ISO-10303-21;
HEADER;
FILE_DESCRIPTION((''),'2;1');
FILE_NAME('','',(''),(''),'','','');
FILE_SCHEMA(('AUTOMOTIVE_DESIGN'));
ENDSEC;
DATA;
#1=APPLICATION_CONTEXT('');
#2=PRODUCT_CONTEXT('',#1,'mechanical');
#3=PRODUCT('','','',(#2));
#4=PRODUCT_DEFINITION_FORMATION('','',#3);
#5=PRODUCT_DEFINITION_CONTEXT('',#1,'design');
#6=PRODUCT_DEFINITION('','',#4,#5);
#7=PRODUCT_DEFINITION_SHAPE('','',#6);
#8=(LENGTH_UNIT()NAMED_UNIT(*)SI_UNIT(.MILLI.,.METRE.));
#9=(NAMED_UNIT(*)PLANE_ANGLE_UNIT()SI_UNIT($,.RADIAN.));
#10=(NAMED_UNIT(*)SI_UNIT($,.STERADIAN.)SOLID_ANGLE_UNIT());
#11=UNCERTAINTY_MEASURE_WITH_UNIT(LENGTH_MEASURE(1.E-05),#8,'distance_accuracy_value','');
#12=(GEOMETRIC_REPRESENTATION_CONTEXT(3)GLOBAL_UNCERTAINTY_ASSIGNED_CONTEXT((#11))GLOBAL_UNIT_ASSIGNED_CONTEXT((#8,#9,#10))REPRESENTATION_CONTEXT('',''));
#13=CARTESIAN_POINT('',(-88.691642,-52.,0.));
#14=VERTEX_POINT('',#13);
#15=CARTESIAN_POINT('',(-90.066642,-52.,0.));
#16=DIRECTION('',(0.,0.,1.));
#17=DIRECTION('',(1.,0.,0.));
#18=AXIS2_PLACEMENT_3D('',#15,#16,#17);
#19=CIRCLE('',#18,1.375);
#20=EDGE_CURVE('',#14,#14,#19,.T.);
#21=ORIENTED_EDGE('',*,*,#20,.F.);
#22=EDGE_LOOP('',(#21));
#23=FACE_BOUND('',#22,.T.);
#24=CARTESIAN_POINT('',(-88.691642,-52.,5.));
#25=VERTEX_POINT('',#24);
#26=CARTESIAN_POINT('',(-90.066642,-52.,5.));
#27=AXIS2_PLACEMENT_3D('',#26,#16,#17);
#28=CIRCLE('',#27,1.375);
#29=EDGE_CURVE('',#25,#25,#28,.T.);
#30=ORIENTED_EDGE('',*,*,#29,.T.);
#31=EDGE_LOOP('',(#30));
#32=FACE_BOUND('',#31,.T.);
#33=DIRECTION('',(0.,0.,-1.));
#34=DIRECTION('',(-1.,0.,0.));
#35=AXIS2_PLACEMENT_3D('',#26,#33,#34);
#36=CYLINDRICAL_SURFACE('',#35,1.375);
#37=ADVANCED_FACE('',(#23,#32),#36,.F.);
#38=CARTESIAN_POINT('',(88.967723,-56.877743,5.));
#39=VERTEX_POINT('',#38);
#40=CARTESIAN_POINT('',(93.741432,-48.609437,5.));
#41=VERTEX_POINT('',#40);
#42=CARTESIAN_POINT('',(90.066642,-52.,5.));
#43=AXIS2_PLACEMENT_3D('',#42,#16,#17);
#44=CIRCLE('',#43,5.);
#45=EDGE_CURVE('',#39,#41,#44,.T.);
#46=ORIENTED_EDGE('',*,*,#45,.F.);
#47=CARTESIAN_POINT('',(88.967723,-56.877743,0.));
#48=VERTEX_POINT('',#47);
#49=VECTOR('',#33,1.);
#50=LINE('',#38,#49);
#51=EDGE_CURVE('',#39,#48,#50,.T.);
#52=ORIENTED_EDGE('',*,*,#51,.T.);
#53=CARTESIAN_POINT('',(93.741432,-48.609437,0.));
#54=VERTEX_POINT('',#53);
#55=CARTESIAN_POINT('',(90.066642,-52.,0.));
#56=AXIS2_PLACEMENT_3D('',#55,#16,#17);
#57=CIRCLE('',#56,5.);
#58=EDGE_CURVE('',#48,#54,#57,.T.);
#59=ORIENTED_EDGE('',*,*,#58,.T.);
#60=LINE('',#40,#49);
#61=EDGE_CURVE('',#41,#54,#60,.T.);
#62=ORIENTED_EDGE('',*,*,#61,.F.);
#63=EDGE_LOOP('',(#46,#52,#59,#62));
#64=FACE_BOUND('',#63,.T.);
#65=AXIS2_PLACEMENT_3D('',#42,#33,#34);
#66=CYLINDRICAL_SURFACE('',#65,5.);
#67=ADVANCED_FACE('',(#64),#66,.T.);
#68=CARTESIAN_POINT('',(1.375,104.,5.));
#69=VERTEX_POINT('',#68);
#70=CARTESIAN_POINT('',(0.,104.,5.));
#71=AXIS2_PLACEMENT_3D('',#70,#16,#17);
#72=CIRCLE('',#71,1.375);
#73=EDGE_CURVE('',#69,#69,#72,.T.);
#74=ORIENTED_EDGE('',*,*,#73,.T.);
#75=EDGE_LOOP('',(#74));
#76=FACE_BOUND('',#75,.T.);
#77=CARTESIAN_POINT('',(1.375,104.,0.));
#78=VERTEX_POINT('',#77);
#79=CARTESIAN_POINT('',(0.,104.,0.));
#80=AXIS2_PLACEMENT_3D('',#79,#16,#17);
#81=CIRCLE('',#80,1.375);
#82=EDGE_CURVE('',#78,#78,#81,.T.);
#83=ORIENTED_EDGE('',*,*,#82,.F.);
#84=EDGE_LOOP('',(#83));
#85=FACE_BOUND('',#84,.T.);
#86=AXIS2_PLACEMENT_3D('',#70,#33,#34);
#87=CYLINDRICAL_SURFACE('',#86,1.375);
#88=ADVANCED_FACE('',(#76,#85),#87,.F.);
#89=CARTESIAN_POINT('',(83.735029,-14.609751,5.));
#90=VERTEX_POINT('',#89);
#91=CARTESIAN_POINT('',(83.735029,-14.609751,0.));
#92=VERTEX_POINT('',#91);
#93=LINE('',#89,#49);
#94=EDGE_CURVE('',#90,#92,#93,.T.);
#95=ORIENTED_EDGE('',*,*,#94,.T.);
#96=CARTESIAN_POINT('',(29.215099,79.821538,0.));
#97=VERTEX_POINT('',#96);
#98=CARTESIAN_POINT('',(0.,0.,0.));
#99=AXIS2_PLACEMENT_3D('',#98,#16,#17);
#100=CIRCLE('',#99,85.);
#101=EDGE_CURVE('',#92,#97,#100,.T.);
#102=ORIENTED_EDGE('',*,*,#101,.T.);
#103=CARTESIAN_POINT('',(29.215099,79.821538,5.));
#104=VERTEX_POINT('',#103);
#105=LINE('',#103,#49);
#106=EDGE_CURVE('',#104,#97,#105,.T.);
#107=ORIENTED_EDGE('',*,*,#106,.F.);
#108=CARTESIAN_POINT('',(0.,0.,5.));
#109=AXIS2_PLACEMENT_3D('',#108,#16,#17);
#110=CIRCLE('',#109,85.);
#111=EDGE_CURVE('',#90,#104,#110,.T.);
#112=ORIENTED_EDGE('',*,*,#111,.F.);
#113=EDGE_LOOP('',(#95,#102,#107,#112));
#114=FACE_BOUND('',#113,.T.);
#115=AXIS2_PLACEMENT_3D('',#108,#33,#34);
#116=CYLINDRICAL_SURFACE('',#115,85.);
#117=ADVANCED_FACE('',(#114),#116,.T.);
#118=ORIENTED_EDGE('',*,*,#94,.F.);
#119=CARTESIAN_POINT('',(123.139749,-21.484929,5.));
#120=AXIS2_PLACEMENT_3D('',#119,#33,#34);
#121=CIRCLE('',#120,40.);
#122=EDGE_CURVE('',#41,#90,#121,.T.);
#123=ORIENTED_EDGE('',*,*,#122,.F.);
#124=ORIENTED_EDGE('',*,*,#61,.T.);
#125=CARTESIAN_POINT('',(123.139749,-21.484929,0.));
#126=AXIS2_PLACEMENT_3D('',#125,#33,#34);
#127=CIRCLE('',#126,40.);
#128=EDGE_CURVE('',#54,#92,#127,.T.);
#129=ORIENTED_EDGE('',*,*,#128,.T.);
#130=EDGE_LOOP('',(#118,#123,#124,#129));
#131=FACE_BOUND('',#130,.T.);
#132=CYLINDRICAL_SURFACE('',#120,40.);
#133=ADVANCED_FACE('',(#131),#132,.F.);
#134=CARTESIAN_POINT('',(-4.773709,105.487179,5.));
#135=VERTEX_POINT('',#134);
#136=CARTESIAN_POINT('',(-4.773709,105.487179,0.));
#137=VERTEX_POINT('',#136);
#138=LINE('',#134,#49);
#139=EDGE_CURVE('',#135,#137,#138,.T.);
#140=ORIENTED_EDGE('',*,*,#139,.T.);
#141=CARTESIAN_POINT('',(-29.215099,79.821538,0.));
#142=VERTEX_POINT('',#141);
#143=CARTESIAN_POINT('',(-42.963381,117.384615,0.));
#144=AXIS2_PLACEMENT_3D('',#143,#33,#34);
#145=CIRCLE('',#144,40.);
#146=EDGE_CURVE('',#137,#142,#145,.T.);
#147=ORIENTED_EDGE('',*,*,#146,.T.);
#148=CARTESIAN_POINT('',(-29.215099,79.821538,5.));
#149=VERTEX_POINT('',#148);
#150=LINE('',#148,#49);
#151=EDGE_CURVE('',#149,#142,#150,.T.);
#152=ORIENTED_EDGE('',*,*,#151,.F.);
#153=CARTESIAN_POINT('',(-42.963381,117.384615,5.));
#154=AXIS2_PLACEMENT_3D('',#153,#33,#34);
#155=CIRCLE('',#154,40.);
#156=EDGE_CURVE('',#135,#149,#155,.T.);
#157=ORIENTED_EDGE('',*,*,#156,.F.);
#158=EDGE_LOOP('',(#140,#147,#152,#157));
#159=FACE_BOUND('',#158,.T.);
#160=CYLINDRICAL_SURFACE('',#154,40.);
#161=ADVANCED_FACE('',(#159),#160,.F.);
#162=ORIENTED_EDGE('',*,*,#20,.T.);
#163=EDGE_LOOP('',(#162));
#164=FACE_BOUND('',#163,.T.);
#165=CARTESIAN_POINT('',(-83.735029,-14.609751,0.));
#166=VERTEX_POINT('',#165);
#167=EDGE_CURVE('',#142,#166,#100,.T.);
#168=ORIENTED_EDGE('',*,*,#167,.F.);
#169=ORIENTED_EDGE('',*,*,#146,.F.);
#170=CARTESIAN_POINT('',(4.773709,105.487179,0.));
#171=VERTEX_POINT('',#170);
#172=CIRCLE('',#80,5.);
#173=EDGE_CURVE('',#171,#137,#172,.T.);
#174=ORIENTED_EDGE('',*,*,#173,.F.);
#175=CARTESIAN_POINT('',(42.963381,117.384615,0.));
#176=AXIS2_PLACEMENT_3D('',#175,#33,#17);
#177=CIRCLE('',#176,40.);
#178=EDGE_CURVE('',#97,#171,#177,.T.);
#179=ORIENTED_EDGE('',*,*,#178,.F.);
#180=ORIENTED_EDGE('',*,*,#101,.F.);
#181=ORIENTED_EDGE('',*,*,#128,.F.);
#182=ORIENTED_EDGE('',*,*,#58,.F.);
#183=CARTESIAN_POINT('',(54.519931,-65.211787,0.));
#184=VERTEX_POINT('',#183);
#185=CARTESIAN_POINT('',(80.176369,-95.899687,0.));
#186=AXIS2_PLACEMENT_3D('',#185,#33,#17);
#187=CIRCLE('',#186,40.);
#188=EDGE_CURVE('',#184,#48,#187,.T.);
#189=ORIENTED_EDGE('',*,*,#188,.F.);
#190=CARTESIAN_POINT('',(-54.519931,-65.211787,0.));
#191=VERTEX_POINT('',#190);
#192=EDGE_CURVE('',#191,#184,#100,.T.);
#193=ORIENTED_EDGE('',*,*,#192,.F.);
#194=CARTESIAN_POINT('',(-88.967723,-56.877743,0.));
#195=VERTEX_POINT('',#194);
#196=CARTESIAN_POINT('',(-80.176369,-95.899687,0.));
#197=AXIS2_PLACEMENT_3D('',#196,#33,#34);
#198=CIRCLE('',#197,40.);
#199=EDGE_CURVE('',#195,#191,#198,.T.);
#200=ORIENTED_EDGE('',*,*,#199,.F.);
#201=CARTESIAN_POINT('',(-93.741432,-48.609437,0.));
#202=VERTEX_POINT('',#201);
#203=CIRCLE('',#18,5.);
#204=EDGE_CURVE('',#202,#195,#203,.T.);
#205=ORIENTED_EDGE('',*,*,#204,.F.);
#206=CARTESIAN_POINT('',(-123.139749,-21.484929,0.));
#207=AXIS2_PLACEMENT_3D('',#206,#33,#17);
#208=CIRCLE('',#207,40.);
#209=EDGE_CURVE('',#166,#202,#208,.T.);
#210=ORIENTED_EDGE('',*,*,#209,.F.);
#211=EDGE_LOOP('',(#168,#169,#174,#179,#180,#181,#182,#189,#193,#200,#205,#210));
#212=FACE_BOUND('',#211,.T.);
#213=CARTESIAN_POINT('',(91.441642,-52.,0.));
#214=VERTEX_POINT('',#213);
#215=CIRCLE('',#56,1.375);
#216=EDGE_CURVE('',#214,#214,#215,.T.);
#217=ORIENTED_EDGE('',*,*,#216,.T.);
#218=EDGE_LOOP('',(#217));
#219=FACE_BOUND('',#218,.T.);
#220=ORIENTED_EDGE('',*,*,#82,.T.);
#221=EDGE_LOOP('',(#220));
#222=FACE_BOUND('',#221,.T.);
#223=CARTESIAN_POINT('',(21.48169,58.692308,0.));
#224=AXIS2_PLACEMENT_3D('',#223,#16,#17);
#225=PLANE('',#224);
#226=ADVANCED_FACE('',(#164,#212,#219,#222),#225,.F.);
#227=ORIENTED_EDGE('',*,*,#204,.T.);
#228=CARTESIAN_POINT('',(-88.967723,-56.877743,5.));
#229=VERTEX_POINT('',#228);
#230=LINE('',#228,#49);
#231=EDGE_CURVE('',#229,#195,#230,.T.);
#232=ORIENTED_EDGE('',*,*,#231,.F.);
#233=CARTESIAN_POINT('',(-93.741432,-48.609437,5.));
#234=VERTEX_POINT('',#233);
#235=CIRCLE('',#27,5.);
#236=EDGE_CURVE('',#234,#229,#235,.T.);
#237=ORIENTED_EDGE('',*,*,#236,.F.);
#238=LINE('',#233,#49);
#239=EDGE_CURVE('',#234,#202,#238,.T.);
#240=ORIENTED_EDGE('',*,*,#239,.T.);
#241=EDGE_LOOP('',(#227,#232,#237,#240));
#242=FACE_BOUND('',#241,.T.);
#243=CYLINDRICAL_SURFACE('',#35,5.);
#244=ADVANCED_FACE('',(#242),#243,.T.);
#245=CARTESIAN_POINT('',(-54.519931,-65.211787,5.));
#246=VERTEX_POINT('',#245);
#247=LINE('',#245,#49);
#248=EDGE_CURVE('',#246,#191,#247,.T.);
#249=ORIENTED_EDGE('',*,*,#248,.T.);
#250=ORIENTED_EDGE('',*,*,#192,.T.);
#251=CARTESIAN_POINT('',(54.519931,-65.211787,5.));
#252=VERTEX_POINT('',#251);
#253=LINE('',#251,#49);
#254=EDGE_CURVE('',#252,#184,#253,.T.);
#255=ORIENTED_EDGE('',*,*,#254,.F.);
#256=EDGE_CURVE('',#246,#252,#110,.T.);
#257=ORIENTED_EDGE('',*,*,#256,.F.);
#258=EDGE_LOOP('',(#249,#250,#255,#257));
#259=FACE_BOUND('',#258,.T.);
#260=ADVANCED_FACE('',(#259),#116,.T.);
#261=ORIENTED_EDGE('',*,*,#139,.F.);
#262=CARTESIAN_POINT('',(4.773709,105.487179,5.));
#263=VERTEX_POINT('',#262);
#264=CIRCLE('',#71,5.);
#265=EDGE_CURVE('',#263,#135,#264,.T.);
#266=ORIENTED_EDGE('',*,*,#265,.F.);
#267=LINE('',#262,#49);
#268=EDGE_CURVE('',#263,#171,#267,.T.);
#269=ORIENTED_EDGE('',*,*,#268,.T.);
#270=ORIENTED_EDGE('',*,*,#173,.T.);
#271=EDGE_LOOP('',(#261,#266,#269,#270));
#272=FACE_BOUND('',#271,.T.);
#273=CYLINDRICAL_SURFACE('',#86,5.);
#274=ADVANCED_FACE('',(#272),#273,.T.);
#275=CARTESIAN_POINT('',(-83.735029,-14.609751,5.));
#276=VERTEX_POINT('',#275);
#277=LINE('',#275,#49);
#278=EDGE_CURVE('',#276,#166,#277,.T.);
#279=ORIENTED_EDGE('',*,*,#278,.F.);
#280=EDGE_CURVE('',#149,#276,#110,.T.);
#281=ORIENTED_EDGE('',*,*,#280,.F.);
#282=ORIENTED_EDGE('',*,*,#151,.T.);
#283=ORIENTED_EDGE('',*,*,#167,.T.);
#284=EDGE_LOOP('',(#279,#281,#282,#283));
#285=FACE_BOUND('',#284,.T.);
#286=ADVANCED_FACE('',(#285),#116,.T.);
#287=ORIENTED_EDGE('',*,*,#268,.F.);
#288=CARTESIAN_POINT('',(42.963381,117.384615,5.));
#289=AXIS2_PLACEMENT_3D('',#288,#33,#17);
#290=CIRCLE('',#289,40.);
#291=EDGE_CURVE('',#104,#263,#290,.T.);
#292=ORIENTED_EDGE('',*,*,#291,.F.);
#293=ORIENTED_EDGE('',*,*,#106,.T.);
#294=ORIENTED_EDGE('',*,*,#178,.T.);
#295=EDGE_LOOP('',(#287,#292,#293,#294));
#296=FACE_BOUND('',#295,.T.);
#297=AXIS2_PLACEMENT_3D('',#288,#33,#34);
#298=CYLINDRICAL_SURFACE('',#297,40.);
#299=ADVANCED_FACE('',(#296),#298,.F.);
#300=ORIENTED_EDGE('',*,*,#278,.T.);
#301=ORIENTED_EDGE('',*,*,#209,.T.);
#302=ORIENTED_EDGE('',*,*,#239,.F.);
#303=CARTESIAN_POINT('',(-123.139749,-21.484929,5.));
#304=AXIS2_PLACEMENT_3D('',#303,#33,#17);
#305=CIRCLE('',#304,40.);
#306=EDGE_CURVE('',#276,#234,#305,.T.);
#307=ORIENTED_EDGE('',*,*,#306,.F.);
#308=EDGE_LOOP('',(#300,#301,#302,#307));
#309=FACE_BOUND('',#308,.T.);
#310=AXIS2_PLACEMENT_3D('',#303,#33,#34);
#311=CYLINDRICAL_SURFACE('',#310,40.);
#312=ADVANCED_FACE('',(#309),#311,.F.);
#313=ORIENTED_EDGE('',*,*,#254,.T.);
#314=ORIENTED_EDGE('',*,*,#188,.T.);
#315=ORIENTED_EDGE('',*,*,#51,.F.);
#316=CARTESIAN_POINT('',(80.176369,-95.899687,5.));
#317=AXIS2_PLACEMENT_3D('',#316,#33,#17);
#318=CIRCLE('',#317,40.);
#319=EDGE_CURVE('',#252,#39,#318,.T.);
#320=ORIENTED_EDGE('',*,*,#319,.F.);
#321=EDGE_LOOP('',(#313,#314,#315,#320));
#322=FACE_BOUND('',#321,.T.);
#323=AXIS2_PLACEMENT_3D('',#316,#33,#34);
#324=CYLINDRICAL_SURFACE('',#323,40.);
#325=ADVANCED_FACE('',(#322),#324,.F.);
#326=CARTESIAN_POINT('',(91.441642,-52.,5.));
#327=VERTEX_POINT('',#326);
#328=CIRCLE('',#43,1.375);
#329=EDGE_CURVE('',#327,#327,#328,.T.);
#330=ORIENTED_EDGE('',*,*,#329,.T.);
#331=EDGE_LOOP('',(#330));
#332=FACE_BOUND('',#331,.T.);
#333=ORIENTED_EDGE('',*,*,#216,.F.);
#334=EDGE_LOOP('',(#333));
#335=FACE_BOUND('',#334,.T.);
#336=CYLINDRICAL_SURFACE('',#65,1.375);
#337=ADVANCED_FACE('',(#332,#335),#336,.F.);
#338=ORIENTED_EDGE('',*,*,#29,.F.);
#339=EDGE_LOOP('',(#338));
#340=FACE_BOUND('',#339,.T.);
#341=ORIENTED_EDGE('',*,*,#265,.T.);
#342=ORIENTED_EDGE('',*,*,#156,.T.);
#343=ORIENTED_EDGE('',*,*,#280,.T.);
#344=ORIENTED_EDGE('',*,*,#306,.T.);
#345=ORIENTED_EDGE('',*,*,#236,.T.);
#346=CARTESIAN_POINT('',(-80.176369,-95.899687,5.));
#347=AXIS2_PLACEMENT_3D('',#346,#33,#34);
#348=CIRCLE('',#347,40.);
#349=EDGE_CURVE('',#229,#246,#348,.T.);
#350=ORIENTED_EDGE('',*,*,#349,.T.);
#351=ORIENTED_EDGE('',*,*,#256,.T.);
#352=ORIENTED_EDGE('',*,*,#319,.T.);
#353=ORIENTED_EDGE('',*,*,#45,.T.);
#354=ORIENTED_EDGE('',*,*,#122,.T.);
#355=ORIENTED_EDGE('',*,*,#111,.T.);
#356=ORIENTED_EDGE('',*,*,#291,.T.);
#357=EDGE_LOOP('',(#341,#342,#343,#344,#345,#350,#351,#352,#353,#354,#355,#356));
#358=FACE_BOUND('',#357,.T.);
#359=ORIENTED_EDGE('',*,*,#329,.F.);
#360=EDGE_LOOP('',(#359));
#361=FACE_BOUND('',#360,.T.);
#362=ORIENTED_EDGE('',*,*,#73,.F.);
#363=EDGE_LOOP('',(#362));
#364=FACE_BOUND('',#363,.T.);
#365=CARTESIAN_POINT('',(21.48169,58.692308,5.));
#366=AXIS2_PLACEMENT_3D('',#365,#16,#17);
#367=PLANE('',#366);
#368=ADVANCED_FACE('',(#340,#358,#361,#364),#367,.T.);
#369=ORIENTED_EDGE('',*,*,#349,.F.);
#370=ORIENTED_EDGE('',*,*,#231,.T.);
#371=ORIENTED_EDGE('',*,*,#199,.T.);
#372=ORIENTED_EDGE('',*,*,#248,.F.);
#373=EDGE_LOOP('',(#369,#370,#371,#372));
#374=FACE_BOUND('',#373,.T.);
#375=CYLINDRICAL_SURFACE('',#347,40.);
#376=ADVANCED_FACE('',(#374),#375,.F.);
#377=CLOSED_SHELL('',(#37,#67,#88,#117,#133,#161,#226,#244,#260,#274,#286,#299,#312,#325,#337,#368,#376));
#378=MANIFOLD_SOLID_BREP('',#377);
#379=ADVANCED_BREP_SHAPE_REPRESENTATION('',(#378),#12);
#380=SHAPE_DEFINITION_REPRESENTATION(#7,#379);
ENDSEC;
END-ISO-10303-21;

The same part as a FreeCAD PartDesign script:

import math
import FreeCAD as App
import Part
import Sketcher

V = App.Vector

doc = App.newDocument("Part")
body = doc.addObject("PartDesign::Body", "Body")

sketch1 = doc.addObject("Sketcher::SketchObject", "Sketch")
body.addObject(sketch1)
sketch1.AttachmentSupport = (doc.XY_Plane, [""])
sketch1.MapMode = "FlatFace"
sketch1.addGeometry([
    Part.ArcOfCircle(Part.Circle(V(0, 0, 0), V(0, 0, 1), 85), math.radians(110), math.radians(190)),
    Part.ArcOfCircle(Part.Circle(V(-123.1, -21.5, 0), V(0, 0, 1), 40), math.radians(-43), math.radians(10)),
    Part.ArcOfCircle(Part.Circle(V(-90.1, -52, 0), V(0, 0, 1), 5), math.radians(137), math.radians(283)),
    Part.ArcOfCircle(Part.Circle(V(-80.2, -95.9, 0), V(0, 0, 1), 40), math.radians(50), math.radians(103)),
    Part.ArcOfCircle(Part.Circle(V(0, 0, 0), V(0, 0, 1), 85), math.radians(-130), math.radians(-50)),
    Part.ArcOfCircle(Part.Circle(V(80.2, -95.9, 0), V(0, 0, 1), 40), math.radians(77), math.radians(130)),
    Part.ArcOfCircle(Part.Circle(V(90.1, -52, 0), V(0, 0, 1), 5), math.radians(-103), math.radians(43)),
    Part.ArcOfCircle(Part.Circle(V(123.1, -21.5, 0), V(0, 0, 1), 40), math.radians(170), math.radians(223)),
    Part.ArcOfCircle(Part.Circle(V(0, 0, 0), V(0, 0, 1), 85), math.radians(-10), math.radians(70)),
    Part.ArcOfCircle(Part.Circle(V(43, 117.4, 0), V(0, 0, 1), 40), math.radians(-163), math.radians(-110)),
    Part.ArcOfCircle(Part.Circle(V(0, 104, 0), V(0, 0, 1), 5), math.radians(17), math.radians(163)),
    Part.ArcOfCircle(Part.Circle(V(-43, 117.4, 0), V(0, 0, 1), 40), math.radians(-70), math.radians(-17)),
    Part.Circle(V(-90.1, -52, 0), V(0, 0, 1), 1.4),
    Part.Circle(V(90.1, -52, 0), V(0, 0, 1), 1.4),
    Part.Circle(V(0, 104, 0), V(0, 0, 1), 1.4),
], False)
sketch1.addConstraint([
    Sketcher.Constraint("Tangent", 0, 2, 1, 2),
    Sketcher.Constraint("Tangent", 1, 1, 2, 1),
    Sketcher.Constraint("Tangent", 2, 2, 3, 2),
    Sketcher.Constraint("Tangent", 3, 1, 4, 1),
    Sketcher.Constraint("Tangent", 4, 2, 5, 2),
    Sketcher.Constraint("Tangent", 5, 1, 6, 1),
    Sketcher.Constraint("Tangent", 6, 2, 7, 2),
    Sketcher.Constraint("Tangent", 7, 1, 8, 1),
    Sketcher.Constraint("Tangent", 8, 2, 9, 2),
    Sketcher.Constraint("Tangent", 9, 1, 10, 1),
    Sketcher.Constraint("Tangent", 10, 2, 11, 2),
    Sketcher.Constraint("Tangent", 11, 1, 0, 1),
    Sketcher.Constraint("Coincident", 0, 3, -1, 1),
    Sketcher.Constraint("Coincident", 4, 3, -1, 1),
    Sketcher.Constraint("Coincident", 8, 3, -1, 1),
    Sketcher.Constraint("Coincident", 12, 3, 2, 3),
    Sketcher.Constraint("Coincident", 13, 3, 6, 3),
    Sketcher.Constraint("Coincident", 14, 3, 10, 3),
    Sketcher.Constraint("Equal", 1, 3),
    Sketcher.Constraint("Equal", 0, 4),
    Sketcher.Constraint("Equal", 3, 5),
    Sketcher.Constraint("Equal", 2, 6),
    Sketcher.Constraint("Equal", 5, 7),
    Sketcher.Constraint("Equal", 4, 8),
    Sketcher.Constraint("Equal", 7, 9),
    Sketcher.Constraint("Equal", 6, 10),
    Sketcher.Constraint("Equal", 9, 11),
    Sketcher.Constraint("Equal", 12, 13),
    Sketcher.Constraint("Equal", 13, 14),
    Sketcher.Constraint("Symmetric", 2, 3, 6, 3, -2),
    Sketcher.Constraint("PointOnObject", 10, 3, -2),
    Sketcher.Constraint("Radius", 0, 85.0),
    Sketcher.Constraint("Radius", 1, 40.0),
    Sketcher.Constraint("Radius", 2, 5.0),
    Sketcher.Constraint("Diameter", 12, 2.75),
    Sketcher.Constraint("DistanceY", 2, 3, -1, 1, 52.0),
    Sketcher.Constraint("DistanceY", -1, 1, 10, 3, 104.0),
    Sketcher.Constraint("DistanceX", 1, 1, 3, 1, 39.221501),
])
pad1 = doc.addObject("PartDesign::Pad", "Pad")
body.addObject(pad1)
pad1.Profile = sketch1
pad1.Length = 5

doc.recompute()
